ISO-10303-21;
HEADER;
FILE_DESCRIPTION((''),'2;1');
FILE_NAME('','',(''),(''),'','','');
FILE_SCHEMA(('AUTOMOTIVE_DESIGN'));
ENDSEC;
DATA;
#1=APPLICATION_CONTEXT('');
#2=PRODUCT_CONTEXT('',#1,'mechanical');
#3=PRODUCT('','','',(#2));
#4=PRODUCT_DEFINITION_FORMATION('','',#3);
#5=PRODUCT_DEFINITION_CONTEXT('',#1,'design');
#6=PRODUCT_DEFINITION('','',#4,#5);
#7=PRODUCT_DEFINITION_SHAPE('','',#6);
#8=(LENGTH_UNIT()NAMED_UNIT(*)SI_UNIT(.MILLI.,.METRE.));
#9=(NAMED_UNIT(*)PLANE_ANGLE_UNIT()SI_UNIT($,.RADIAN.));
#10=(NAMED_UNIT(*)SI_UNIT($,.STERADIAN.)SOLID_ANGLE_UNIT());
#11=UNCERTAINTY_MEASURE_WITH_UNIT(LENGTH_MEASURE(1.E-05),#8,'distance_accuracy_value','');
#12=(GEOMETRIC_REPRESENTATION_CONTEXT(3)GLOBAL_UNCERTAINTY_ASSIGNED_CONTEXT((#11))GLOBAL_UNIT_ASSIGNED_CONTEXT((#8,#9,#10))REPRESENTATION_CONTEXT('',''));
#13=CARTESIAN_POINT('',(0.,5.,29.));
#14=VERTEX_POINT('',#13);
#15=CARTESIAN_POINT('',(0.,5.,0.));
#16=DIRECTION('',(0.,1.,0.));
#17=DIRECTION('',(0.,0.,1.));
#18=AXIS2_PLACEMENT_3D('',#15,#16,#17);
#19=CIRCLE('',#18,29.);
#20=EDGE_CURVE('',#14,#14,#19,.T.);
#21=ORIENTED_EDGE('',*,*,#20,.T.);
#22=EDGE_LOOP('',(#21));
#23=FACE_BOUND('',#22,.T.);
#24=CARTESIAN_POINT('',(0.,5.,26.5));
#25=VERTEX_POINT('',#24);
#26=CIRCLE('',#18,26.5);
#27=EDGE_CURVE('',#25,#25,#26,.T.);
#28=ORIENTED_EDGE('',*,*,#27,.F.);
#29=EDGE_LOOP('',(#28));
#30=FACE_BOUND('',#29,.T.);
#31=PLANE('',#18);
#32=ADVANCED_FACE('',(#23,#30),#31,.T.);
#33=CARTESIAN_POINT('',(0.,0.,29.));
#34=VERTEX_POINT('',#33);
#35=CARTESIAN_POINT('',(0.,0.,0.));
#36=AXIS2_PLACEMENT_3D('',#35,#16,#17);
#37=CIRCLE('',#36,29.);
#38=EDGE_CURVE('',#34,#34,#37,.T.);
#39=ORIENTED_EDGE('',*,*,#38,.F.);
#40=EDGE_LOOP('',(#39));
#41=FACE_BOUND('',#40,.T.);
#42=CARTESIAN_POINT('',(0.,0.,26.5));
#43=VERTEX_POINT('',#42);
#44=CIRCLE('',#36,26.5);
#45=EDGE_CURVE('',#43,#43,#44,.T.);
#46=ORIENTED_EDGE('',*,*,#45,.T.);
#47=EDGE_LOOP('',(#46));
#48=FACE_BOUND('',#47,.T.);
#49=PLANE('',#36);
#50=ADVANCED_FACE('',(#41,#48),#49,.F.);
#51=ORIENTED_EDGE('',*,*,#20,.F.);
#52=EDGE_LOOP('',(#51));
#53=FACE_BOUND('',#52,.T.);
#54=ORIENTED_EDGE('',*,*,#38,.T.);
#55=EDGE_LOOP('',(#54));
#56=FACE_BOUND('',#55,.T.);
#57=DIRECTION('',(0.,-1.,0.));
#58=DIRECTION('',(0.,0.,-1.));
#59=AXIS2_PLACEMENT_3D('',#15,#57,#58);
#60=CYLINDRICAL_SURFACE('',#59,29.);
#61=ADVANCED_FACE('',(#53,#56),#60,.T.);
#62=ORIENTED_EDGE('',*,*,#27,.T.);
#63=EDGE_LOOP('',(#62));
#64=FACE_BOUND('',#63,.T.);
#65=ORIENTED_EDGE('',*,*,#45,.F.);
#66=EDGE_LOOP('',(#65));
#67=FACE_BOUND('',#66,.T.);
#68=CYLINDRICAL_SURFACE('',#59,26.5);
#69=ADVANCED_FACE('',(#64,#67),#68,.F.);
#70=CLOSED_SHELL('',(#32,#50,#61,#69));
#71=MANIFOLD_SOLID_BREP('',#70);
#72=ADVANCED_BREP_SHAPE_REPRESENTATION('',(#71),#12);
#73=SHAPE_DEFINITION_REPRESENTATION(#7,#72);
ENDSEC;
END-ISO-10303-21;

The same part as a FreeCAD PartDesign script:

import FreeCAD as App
import Part
import Sketcher
from FreeCAD import Vector
Q = App.Units.Quantity

doc = App.newDocument("Part")
body = doc.addObject("PartDesign::Body", "Body")

# Sketch on XZ plane
sketch1 = body.newObject("Sketcher::SketchObject", "Sketch")
sketch1.AttachmentSupport = (doc.getObject("XZ_Plane"), [""])
sketch1.MapMode = "FlatFace"
sketch1.addGeometry([
    Part.Circle(Vector(0, 0, 0), Vector(0, 0, 1), 29),
    Part.Circle(Vector(0, 0, 0), Vector(0, 0, 1), 26),
], False)
sketch1.addConstraint([
    Sketcher.Constraint("Coincident", 0, 3, -1, 1),
    Sketcher.Constraint("Coincident", 1, 3, -1, 1),
    Sketcher.Constraint("Diameter", 0, Q("58 mm")),
    Sketcher.Constraint("Diameter", 1, Q("53 mm")),
])
pad1 = body.newObject("PartDesign::Pad", "Pad")
pad1.Profile = sketch1
pad1.Length = 5
pad1.Reversed = True

doc.recompute()
